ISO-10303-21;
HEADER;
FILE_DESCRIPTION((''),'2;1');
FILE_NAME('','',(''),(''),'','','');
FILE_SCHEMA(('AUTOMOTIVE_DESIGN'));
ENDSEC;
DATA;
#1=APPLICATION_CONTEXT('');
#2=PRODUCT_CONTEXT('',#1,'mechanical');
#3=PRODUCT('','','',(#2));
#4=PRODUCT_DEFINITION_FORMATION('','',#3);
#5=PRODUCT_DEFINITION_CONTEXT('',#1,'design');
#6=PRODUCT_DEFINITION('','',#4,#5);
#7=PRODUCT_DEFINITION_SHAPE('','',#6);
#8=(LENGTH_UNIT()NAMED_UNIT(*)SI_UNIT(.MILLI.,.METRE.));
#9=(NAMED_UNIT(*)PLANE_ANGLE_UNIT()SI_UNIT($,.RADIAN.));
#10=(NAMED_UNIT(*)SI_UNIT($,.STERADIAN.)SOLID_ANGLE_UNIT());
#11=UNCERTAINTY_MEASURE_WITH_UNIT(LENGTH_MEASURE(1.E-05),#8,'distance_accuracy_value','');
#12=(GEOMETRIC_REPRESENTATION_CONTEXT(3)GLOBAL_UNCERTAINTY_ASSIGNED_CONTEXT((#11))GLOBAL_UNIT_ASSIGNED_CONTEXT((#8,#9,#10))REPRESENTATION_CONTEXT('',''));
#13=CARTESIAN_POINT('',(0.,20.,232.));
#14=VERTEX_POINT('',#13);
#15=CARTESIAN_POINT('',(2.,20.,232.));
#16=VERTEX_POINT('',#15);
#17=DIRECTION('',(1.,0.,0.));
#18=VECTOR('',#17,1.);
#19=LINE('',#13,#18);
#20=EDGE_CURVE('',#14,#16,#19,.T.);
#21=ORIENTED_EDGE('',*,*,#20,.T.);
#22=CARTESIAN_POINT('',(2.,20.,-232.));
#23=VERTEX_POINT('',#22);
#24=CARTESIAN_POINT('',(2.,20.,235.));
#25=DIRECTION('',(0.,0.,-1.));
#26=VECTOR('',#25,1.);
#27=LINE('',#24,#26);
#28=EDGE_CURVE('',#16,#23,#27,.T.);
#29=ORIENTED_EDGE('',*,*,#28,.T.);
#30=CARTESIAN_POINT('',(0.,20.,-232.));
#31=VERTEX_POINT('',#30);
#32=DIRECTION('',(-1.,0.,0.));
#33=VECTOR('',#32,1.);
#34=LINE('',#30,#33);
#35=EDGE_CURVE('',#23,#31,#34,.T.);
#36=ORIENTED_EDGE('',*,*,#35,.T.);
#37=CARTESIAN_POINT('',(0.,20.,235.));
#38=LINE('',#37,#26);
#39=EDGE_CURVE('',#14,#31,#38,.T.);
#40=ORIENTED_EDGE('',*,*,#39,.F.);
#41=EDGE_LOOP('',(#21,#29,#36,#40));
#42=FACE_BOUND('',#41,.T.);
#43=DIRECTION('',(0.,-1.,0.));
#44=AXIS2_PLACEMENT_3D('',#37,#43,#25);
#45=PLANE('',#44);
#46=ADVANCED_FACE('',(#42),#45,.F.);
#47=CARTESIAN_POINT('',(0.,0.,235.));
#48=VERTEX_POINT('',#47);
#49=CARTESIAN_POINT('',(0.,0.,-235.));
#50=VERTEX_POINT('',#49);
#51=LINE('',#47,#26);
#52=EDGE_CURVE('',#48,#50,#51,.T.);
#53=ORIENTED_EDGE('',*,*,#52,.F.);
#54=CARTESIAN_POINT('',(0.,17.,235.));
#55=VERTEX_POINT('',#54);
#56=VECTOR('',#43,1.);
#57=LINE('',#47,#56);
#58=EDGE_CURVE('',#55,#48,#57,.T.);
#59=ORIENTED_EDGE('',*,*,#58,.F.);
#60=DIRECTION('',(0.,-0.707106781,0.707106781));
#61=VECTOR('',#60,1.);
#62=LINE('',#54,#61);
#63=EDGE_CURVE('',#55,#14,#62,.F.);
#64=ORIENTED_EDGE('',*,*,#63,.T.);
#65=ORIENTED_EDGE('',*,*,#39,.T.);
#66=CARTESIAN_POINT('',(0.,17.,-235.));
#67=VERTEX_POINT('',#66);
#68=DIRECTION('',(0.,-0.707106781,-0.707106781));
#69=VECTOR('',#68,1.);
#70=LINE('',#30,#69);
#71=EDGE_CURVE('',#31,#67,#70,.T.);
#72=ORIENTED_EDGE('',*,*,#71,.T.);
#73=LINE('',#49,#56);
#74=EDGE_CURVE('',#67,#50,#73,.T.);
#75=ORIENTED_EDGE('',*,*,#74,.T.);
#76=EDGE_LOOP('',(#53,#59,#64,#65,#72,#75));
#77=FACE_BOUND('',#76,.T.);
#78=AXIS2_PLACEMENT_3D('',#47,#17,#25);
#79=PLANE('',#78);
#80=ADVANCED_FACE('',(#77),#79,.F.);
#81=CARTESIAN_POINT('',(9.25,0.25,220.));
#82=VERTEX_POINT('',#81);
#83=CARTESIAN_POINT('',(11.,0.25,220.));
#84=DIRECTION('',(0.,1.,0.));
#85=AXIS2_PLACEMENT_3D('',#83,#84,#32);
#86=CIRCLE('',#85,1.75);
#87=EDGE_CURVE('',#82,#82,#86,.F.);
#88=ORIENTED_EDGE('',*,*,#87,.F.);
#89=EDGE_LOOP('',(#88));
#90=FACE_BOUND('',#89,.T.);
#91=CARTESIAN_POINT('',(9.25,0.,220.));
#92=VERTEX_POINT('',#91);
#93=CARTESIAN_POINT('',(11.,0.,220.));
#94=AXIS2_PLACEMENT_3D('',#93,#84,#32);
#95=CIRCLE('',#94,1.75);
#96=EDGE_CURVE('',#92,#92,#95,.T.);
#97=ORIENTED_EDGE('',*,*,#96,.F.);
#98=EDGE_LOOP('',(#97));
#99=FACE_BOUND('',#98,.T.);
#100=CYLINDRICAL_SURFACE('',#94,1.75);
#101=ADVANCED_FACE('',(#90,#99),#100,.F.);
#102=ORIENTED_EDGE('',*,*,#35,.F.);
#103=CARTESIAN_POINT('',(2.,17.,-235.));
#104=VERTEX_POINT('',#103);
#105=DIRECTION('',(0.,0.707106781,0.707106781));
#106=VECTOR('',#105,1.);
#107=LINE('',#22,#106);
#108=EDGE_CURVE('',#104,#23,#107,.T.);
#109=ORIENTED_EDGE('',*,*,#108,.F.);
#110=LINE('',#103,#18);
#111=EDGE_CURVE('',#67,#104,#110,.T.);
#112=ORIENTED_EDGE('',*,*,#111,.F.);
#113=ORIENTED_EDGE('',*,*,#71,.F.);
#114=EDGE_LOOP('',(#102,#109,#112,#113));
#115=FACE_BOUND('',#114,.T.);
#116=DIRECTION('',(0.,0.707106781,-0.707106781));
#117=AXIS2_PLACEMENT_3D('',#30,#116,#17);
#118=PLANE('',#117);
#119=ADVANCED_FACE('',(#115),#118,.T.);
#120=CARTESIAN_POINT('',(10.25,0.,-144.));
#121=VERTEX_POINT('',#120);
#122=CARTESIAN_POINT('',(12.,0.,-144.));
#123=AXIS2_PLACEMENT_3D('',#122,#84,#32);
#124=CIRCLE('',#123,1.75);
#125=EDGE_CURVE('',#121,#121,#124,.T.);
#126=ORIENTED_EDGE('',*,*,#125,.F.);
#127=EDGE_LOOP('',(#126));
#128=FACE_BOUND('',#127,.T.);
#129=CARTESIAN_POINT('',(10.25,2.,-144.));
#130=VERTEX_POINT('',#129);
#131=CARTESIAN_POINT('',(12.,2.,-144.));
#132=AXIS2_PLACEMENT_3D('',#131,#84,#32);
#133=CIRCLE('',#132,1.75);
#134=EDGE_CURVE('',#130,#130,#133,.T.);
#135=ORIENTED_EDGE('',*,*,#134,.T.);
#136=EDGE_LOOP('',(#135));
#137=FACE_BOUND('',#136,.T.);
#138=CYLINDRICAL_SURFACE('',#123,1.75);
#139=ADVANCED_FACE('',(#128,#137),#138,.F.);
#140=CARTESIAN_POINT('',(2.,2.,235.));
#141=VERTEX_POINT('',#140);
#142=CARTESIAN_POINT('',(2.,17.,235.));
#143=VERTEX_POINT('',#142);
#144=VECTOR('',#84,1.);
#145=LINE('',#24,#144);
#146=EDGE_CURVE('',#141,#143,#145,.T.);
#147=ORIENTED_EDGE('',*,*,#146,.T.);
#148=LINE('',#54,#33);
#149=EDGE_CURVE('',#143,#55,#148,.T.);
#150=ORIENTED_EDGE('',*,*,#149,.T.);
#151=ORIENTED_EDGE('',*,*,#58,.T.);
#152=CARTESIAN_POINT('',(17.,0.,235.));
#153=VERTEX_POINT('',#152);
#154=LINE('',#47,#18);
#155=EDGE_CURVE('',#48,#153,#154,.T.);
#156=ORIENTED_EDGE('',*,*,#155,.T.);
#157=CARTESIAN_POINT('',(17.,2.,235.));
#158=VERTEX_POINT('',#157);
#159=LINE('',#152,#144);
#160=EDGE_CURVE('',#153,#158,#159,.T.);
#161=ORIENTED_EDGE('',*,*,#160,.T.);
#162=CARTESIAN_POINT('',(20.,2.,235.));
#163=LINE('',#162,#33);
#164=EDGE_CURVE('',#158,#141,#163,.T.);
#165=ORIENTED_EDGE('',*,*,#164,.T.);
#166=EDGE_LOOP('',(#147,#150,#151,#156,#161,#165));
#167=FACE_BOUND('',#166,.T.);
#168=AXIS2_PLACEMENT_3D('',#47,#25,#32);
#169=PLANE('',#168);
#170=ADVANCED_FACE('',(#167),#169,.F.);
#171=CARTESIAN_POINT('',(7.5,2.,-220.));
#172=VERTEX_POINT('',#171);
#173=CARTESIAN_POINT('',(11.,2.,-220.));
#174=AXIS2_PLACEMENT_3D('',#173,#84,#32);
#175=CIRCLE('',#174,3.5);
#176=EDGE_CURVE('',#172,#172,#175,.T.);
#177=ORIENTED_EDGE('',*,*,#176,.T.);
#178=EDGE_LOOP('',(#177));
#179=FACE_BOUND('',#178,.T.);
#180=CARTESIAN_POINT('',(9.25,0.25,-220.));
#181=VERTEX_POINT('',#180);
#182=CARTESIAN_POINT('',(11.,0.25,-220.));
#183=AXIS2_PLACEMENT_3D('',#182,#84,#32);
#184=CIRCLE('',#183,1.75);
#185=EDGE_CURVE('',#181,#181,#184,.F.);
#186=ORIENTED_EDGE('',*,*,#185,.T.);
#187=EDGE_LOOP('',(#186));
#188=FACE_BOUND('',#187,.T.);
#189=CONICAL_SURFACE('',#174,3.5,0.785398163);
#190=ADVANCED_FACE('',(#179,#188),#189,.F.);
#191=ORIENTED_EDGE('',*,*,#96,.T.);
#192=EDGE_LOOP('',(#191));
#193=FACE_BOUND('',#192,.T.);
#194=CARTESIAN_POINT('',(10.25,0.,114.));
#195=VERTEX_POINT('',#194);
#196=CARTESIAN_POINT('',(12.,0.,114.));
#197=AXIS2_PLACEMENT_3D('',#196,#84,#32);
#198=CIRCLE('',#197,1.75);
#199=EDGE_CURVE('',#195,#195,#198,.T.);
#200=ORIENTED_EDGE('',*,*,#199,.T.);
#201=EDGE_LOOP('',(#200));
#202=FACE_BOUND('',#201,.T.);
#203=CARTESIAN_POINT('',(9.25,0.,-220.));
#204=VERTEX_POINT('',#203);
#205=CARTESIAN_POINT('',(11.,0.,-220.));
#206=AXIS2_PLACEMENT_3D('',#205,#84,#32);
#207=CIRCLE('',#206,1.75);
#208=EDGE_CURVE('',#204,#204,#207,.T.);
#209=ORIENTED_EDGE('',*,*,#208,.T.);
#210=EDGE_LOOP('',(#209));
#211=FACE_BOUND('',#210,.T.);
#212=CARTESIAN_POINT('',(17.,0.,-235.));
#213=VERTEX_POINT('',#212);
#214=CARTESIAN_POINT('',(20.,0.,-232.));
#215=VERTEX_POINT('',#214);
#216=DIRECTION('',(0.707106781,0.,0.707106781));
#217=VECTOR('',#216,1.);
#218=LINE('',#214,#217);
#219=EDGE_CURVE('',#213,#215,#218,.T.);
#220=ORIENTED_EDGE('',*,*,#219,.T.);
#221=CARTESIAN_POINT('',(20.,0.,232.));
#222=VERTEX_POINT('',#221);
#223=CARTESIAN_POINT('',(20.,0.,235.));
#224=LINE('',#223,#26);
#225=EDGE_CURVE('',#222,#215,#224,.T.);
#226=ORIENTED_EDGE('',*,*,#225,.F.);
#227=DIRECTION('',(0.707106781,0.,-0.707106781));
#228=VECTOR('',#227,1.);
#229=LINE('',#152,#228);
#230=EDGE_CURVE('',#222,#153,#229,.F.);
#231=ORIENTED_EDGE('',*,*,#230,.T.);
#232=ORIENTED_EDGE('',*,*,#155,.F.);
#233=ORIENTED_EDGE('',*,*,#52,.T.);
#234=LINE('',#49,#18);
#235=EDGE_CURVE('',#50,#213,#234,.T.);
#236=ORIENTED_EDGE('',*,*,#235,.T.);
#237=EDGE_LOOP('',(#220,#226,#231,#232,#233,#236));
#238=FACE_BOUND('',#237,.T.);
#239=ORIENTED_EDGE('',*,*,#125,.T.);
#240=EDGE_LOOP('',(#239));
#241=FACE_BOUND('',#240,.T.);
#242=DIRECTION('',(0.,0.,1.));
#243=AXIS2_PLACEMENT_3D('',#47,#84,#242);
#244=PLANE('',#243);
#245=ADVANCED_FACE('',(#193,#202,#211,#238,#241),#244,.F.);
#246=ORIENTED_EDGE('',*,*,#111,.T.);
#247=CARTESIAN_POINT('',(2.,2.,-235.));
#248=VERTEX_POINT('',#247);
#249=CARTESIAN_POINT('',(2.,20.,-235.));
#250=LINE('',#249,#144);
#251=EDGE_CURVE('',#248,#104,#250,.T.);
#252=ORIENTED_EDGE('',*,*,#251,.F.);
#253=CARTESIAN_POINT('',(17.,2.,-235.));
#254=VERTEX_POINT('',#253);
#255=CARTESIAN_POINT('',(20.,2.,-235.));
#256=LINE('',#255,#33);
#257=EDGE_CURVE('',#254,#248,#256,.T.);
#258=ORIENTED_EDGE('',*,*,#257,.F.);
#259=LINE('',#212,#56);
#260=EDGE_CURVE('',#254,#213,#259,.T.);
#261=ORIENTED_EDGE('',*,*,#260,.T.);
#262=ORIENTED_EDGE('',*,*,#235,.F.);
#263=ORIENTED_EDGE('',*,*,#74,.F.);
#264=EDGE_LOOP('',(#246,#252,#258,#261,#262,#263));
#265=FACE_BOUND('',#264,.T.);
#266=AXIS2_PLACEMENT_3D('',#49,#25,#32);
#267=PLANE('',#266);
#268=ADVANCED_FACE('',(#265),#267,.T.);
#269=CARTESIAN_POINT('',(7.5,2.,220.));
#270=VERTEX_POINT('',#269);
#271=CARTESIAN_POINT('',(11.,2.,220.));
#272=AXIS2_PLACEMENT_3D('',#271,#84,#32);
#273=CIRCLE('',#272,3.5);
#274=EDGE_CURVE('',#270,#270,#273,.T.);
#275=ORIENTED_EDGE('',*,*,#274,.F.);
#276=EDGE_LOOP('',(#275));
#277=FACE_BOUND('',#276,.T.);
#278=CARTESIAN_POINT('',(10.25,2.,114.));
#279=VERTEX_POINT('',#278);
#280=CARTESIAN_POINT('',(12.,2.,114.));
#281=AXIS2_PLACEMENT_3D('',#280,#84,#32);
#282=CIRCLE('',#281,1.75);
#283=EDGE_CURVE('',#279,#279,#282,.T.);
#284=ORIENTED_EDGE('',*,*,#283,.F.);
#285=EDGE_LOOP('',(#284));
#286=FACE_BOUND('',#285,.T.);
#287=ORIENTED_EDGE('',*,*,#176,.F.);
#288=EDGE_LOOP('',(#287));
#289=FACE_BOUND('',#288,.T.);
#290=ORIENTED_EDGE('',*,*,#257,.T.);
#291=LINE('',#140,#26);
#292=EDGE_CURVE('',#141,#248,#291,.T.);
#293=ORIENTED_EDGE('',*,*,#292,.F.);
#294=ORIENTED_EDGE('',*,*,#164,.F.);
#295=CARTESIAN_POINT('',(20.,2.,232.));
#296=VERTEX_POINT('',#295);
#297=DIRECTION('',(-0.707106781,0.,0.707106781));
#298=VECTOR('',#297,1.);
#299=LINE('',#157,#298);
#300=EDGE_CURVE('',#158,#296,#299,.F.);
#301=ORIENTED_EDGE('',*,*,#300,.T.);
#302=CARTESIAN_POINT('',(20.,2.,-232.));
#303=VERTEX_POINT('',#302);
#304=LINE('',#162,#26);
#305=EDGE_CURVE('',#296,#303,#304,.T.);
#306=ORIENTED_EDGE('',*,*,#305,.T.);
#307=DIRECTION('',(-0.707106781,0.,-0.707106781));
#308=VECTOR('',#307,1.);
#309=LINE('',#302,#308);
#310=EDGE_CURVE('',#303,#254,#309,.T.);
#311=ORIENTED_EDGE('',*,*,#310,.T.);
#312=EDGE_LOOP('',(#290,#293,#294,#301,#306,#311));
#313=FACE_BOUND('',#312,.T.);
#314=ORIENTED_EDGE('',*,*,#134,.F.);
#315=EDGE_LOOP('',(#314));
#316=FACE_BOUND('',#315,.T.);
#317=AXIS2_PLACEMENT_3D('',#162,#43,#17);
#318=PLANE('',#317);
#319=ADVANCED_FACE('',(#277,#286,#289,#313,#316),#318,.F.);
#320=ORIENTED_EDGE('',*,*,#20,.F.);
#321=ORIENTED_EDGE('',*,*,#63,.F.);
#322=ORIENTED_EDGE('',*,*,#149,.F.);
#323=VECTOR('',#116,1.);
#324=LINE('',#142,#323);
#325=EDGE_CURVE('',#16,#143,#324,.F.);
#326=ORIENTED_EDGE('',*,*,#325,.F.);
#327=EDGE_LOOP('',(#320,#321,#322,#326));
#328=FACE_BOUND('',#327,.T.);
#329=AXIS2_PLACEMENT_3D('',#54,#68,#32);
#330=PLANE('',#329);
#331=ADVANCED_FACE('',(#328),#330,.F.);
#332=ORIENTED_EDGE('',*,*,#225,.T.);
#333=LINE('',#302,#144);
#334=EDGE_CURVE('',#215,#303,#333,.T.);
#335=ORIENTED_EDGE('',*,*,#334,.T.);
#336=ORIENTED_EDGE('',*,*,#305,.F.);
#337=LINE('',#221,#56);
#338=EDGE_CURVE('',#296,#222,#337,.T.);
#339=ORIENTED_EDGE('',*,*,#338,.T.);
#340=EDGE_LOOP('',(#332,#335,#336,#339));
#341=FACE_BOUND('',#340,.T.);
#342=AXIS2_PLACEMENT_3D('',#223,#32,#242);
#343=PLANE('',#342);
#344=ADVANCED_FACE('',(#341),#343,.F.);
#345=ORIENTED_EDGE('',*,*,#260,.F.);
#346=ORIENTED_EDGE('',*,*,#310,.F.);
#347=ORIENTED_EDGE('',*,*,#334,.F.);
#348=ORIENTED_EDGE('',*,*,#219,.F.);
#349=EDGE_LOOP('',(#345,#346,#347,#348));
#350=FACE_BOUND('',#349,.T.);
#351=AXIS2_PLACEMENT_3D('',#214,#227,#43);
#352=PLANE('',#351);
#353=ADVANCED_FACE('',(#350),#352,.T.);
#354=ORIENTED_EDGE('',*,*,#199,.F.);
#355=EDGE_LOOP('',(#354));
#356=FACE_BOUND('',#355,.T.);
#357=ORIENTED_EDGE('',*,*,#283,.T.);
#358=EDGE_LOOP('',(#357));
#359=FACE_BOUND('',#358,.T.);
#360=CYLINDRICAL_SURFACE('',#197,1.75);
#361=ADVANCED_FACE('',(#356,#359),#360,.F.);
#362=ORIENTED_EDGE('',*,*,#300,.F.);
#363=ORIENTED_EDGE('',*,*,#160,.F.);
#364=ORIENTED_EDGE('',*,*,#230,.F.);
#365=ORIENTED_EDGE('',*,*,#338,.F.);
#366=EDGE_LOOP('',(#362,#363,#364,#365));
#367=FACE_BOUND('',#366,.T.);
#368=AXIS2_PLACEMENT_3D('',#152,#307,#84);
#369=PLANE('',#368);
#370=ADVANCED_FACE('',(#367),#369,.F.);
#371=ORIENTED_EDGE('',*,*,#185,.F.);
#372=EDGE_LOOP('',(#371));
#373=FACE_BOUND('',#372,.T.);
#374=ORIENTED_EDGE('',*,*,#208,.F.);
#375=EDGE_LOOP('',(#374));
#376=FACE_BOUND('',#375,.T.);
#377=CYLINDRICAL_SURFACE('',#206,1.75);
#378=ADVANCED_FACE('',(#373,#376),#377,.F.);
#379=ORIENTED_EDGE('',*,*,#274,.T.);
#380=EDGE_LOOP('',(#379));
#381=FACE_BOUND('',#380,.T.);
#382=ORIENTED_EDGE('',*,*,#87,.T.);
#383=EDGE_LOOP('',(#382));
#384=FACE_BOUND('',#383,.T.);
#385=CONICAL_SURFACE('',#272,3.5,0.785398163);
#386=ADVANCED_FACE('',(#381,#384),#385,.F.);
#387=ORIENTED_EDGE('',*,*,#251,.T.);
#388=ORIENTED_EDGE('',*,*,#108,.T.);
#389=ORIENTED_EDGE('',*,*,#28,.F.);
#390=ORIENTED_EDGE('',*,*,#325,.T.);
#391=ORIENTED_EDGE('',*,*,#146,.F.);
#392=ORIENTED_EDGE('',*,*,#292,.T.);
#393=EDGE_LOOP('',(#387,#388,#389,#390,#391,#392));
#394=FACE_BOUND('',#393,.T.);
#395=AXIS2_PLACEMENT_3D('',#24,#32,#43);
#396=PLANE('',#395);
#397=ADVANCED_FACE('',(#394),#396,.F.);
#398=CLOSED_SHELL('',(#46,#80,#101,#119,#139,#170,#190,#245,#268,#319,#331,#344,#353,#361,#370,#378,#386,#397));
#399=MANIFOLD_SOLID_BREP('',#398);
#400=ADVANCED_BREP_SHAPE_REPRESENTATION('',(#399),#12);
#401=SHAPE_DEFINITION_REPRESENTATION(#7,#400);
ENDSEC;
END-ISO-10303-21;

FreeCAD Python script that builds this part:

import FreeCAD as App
import Part
import Sketcher

V = App.Vector
Q = App.Units.Quantity


def edges_at(feature, points):
    """Names of the edges that pass closest to the given points."""
    edges = feature.Shape.Edges
    near = lambda p: min(range(len(edges)), key=lambda i: edges[i].distToShape(Part.Vertex(*p))[0])
    return sorted({f"Edge{near(p) + 1}" for p in points})

doc = App.newDocument("Part")
params = doc.addObject("Spreadsheet::Sheet", "Params")
for row, (alias, value) in enumerate([
    ("sketch1_width", "20 mm"),
    ("sketch1_width2", "18 mm"),
    ("pad1_length", "470 mm"),
    ("sketch2_width", "3.5 mm"),
    ("groove_angle", "360 deg"),
    ("sketch3_width", "3.5 mm"),
    ("groove2_angle", "360 deg"),
    ("sketch4_diameter", "3.5 mm"),
    ("chamfer_size", "3 mm"),
    ("sketch5_diameter", "3.5 mm"),
], start=1):
    params.set(f"A{row}", alias)
    params.set(f"B{row}", "=" + value)
    params.setAlias(f"B{row}", alias)

body = doc.addObject("PartDesign::Body", "Body")

sketch1 = body.newObject("Sketcher::SketchObject", "Sketch")
sketch1.AttachmentSupport = (doc.getObject("XY_Plane"), [""])
sketch1.MapMode = "FlatFace"
sketch1.addGeometry(Part.LineSegment(V(0, 0, 0), V(20, 0, 0)), False)
sketch1.addGeometry(Part.LineSegment(V(20, 0, 0), V(20, 2, 0)), False)
sketch1.addGeometry(Part.LineSegment(V(20, 2, 0), V(2, 2, 0)), False)
sketch1.addGeometry(Part.LineSegment(V(2, 2, 0), V(2, 20, 0)), False)
sketch1.addGeometry(Part.LineSegment(V(2, 20, 0), V(0, 20, 0)), False)
sketch1.addGeometry(Part.LineSegment(V(0, 20, 0), V(0, 0, 0)), False)
sketch1.addConstraint(Sketcher.Constraint("Coincident", 0, 2, 1, 1))
sketch1.addConstraint(Sketcher.Constraint("Coincident", 1, 2, 2, 1))
sketch1.addConstraint(Sketcher.Constraint("Coincident", 2, 2, 3, 1))
sketch1.addConstraint(Sketcher.Constraint("Coincident", 3, 2, 4, 1))
sketch1.addConstraint(Sketcher.Constraint("Coincident", 4, 2, 5, 1))
sketch1.addConstraint(Sketcher.Constraint("Coincident", 5, 2, 0, 1))
sketch1.addConstraint(Sketcher.Constraint("Horizontal", 0))
sketch1.addConstraint(Sketcher.Constraint("Vertical", 1))
sketch1.addConstraint(Sketcher.Constraint("Horizontal", 2))
sketch1.addConstraint(Sketcher.Constraint("Vertical", 3))
sketch1.addConstraint(Sketcher.Constraint("Horizontal", 4))
sketch1.addConstraint(Sketcher.Constraint("Vertical", 5))
sketch1.addConstraint(Sketcher.Constraint("Coincident", 5, 2, -1, 1))
sketch1.addConstraint(Sketcher.Constraint("Equal", 4, 1))
sketch1.addConstraint(Sketcher.Constraint("Equal", 2, 3))
sketch1.addConstraint(Sketcher.Constraint("DistanceX", 0, 1, 0, 2, Q("20 mm")))
sketch1.addConstraint(Sketcher.Constraint("DistanceX", 2, 2, 2, 1, Q("18 mm")))
sketch1.setExpression("Constraints[15]", "Params.sketch1_width")
sketch1.setExpression("Constraints[16]", "Params.sketch1_width2")
pad1 = body.newObject("PartDesign::Pad", "Pad")
pad1.Profile = sketch1
pad1.setExpression("Length", "Params.pad1_length")
pad1.Midplane = True

sketch2 = body.newObject("Sketcher::SketchObject", "Sketch001")
sketch2.AttachmentSupport = (doc.getObject("YZ_Plane"), [""])
sketch2.MapMode = "FlatFace"
sketch2.AttachmentOffset = App.Placement(V(0, 0, 11), App.Rotation())
sketch2.addGeometry(Part.LineSegment(V(2, -220, 0), V(2, -216.5, 0)), False)
sketch2.addGeometry(Part.LineSegment(V(2, -216.5, 0), V(-1.5, -220, 0)), False)
sketch2.addGeometry(Part.LineSegment(V(-1.5, -220, 0), V(2, -220, 0)), False)
sketch2.addGeometry(Part.LineSegment(V(2, -220, 0), V(-1.5, -220, 0)), True)
sketch2.addConstraint(Sketcher.Constraint("Coincident", 0, 2, 1, 1))
sketch2.addConstraint(Sketcher.Constraint("Coincident", 1, 2, 2, 1))
sketch2.addConstraint(Sketcher.Constraint("Coincident", 2, 2, 0, 1))
sketch2.addConstraint(Sketcher.Constraint("Vertical", 0))
sketch2.addConstraint(Sketcher.Constraint("Horizontal", 2))
sketch2.addConstraint(Sketcher.Constraint("Horizontal", 3))
sketch2.addConstraint(Sketcher.Constraint("Coincident", 3, 1, 2, 2))
sketch2.addConstraint(Sketcher.Constraint("Equal", 2, 3))
sketch2.addConstraint(Sketcher.Constraint("Equal", 3, 0))
sketch2.addConstraint(Sketcher.Constraint("DistanceX", 2, 1, 2, 2, Q("3.5 mm")))
sketch2.addConstraint(Sketcher.Constraint("DistanceX", -1, 1, 0, 2, Q("2 mm")))
sketch2.addConstraint(Sketcher.Constraint("DistanceY", 1, 2, -1, 1, Q("220 mm")))
sketch2.setExpression("Constraints[9]", "Params.sketch2_width")
groove = body.newObject("PartDesign::Groove", "Groove")
groove.Profile = sketch2
groove.ReferenceAxis = (sketch2, ["Axis0"])
groove.setExpression("Angle", "Params.groove_angle")

sketch3 = body.newObject("Sketcher::SketchObject", "Sketch002")
sketch3.AttachmentSupport = (doc.getObject("YZ_Plane"), [""])
sketch3.MapMode = "FlatFace"
sketch3.AttachmentOffset = App.Placement(V(0, 0, 11), App.Rotation())
sketch3.addGeometry(Part.LineSegment(V(2, 220, 0), V(2, 223.5, 0)), False)
sketch3.addGeometry(Part.LineSegment(V(2, 223.5, 0), V(-1.5, 220, 0)), False)
sketch3.addGeometry(Part.LineSegment(V(-1.5, 220, 0), V(2, 220, 0)), False)
sketch3.addGeometry(Part.LineSegment(V(2, 220, 0), V(-1.5, 220, 0)), True)
sketch3.addConstraint(Sketcher.Constraint("Coincident", 0, 2, 1, 1))
sketch3.addConstraint(Sketcher.Constraint("Coincident", 1, 2, 2, 1))
sketch3.addConstraint(Sketcher.Constraint("Coincident", 2, 2, 0, 1))
sketch3.addConstraint(Sketcher.Constraint("Vertical", 0))
sketch3.addConstraint(Sketcher.Constraint("Horizontal", 2))
sketch3.addConstraint(Sketcher.Constraint("Horizontal", 3))
sketch3.addConstraint(Sketcher.Constraint("Coincident", 3, 1, 2, 2))
sketch3.addConstraint(Sketcher.Constraint("Equal", 2, 3))
sketch3.addConstraint(Sketcher.Constraint("Equal", 3, 0))
sketch3.addConstraint(Sketcher.Constraint("DistanceX", 2, 1, 2, 2, Q("3.5 mm")))
sketch3.addConstraint(Sketcher.Constraint("DistanceX", -1, 1, 0, 2, Q("2 mm")))
sketch3.addConstraint(Sketcher.Constraint("DistanceY", -1, 1, 1, 2, Q("220 mm")))
sketch3.setExpression("Constraints[9]", "Params.sketch3_width")
groove2 = body.newObject("PartDesign::Groove", "Groove001")
groove2.Profile = sketch3
groove2.ReferenceAxis = (sketch3, ["Axis0"])
groove2.setExpression("Angle", "Params.groove2_angle")

sketch4 = body.newObject("Sketcher::SketchObject", "Sketch003")
sketch4.AttachmentSupport = (doc.getObject("XZ_Plane"), [""])
sketch4.MapMode = "FlatFace"
sketch4.AttachmentOffset = App.Placement(V(0, 0, -2), App.Rotation())
sketch4.addGeometry(Part.Circle(V(11, 220, 0), V(0, 0, 1), 1.8), False)
sketch4.addGeometry(Part.Circle(V(11, -220, 0), V(0, 0, 1), 1.8), False)
sketch4.addConstraint(Sketcher.Constraint("Equal", 0, 1))
sketch4.addConstraint(Sketcher.Constraint("Symmetric", 0, 3, 1, 3, -1))
sketch4.addConstraint(Sketcher.Constraint("Diameter", 0, Q("3.5 mm")))
sketch4.addConstraint(Sketcher.Constraint("DistanceX", -1, 1, 0, 3, Q("11 mm")))
sketch4.addConstraint(Sketcher.Constraint("DistanceY", -1, 1, 0, 3, Q("220 mm")))
sketch4.setExpression("Constraints[2]", "Params.sketch4_diameter")
pocket1 = body.newObject("PartDesign::Pocket", "Pocket")
pocket1.Profile = sketch4
pocket1.Type = "ThroughAll"
pocket1.Reversed = True
doc.recompute()

chamfer = body.newObject("PartDesign::Chamfer", "Chamfer")
chamfer.Base = (pocket1, edges_at(pocket1, [
    (20, 1, 235),
    (1, 20, 235),
    (1, 20, -235),
    (20, 1, -235),
]))
chamfer.setExpression("Size", "Params.chamfer_size")

sketch5 = body.newObject("Sketcher::SketchObject", "Sketch004")
sketch5.AttachmentSupport = (doc.getObject("XZ_Plane"), [""])
sketch5.MapMode = "FlatFace"
sketch5.AttachmentOffset = App.Placement(V(0, 0, -2), App.Rotation())
sketch5.addGeometry(Part.Circle(V(12, -144, 0), V(0, 0, 1), 1.8), False)
sketch5.addGeometry(Part.Circle(V(12, 114, 0), V(0, 0, 1), 1.8), False)
sketch5.addConstraint(Sketcher.Constraint("Equal", 0, 1))
sketch5.addConstraint(Sketcher.Constraint("Vertical", 0, 3, 1, 3))
sketch5.addConstraint(Sketcher.Constraint("Diameter", 0, Q("3.5 mm")))
sketch5.addConstraint(Sketcher.Constraint("DistanceX", -1, 1, 0, 3, Q("12 mm")))
sketch5.addConstraint(Sketcher.Constraint("DistanceY", 0, 3, -1, 1, Q("144 mm")))
sketch5.addConstraint(Sketcher.Constraint("DistanceY", -1, 1, 1, 3, Q("114 mm")))
sketch5.setExpression("Constraints[2]", "Params.sketch5_diameter")
pocket2 = body.newObject("PartDesign::Pocket", "Pocket001")
pocket2.Profile = sketch5
pocket2.Type = "ThroughAll"
pocket2.Reversed = True

doc.recompute()
